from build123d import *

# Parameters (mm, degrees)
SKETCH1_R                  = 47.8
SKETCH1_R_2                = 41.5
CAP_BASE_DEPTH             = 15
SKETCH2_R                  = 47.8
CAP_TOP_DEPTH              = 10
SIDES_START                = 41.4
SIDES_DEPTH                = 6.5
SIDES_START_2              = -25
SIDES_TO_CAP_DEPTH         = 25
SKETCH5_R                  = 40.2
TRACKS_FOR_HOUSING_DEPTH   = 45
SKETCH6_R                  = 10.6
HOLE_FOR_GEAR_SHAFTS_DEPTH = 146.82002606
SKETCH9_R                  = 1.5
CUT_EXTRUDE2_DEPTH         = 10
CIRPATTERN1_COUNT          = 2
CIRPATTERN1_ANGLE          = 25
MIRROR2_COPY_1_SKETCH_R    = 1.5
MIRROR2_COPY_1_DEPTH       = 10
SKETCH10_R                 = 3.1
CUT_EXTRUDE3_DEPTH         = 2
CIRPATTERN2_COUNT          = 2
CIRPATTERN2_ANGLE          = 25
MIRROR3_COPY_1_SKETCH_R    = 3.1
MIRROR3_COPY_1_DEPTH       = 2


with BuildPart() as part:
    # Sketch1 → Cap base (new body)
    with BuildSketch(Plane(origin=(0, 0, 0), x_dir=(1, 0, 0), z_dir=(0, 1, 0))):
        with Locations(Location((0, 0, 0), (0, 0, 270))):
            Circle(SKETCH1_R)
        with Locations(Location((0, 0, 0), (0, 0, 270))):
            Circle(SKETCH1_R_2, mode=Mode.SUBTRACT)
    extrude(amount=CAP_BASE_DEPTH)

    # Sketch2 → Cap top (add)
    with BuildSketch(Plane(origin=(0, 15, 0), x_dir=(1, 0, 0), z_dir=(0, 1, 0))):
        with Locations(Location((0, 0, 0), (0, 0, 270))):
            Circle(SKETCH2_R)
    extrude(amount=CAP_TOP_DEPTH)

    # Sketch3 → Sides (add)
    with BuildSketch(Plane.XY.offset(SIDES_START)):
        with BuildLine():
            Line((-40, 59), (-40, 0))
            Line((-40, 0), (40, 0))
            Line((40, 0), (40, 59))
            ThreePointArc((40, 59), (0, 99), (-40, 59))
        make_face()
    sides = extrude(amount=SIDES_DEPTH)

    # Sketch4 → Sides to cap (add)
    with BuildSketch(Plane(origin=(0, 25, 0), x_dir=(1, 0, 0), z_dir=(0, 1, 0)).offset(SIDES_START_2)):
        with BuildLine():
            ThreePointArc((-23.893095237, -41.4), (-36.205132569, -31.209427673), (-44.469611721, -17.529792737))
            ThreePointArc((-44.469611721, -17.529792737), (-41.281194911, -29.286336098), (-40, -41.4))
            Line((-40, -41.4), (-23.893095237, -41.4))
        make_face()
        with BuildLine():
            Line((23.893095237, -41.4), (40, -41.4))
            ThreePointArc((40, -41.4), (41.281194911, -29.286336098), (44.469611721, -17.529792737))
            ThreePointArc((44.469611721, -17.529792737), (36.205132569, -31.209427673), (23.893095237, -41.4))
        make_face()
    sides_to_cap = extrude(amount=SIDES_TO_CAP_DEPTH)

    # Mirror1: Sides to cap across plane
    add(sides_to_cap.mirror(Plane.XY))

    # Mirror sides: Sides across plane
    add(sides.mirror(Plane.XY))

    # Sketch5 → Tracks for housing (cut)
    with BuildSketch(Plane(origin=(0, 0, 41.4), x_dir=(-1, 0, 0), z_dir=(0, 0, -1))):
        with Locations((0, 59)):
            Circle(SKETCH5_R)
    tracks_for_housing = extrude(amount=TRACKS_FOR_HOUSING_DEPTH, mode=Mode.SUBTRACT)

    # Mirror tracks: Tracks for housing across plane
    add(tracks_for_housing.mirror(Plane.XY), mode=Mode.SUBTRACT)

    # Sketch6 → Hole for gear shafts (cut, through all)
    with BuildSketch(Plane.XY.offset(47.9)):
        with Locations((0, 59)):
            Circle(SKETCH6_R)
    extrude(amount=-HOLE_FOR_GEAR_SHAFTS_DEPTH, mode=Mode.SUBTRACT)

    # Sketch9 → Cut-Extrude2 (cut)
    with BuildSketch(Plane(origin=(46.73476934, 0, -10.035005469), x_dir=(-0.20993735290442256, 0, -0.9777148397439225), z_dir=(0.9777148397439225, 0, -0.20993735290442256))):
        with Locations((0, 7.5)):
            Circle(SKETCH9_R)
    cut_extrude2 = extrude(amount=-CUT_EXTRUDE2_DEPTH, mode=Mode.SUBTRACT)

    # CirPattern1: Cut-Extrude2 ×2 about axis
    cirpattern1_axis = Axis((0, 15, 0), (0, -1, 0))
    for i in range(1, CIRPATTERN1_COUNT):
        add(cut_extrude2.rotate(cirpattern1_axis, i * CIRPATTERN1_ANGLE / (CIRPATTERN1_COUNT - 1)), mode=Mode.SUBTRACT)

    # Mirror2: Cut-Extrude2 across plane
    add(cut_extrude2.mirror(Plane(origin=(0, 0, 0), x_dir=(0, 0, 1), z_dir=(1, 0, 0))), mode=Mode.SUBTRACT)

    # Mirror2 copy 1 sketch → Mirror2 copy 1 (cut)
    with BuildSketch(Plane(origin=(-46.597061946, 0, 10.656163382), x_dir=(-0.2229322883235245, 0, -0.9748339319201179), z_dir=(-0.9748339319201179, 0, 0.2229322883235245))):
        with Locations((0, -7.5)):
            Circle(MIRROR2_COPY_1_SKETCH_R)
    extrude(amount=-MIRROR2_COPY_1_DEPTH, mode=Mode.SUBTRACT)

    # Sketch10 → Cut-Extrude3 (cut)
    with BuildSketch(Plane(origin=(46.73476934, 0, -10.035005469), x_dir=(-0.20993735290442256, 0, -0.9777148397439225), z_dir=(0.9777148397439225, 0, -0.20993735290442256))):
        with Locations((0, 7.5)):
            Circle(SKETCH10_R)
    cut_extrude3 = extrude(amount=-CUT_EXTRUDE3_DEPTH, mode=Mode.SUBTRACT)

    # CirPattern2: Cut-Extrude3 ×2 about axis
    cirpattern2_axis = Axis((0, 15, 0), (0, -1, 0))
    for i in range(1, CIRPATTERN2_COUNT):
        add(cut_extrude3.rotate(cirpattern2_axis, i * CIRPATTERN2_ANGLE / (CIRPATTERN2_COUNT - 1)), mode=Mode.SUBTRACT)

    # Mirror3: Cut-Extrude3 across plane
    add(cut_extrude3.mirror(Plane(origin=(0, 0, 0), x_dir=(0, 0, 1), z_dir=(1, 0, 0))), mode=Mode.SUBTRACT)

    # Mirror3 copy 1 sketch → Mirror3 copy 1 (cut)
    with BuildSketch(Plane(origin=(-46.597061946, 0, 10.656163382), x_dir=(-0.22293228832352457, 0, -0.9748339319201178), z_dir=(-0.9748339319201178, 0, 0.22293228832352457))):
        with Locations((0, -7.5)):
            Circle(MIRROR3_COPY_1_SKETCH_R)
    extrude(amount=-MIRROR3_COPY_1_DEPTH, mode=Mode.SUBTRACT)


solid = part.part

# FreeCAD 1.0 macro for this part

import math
import FreeCAD as App
import Part
import Sketcher
from FreeCAD import Vector

doc = App.newDocument("Part")
body = doc.addObject("PartDesign::Body", "Body")

sketch1 = body.newObject("Sketcher::SketchObject", "Sketch")
sketch1.AttachmentSupport = (doc.getObject("XZ_Plane"), [""])
sketch1.MapMode = "FlatFace"
sketch1.addGeometry(Part.Circle(Vector(0, 0, 0), Vector(0, 0, 1), 47.8), False)
sketch1.addGeometry(Part.Circle(Vector(0, 0, 0), Vector(0, 0, 1), 41.5), False)
sketch1.addConstraint(Sketcher.Constraint("Coincident", 0, 3, -1, 1))
sketch1.addConstraint(Sketcher.Constraint("Coincident", 1, 3, -1, 1))
sketch1.addConstraint(Sketcher.Constraint("Diameter", 1, 83.0))
sketch1.addConstraint(Sketcher.Constraint("Diameter", 0, 95.6))
pad1 = body.newObject("PartDesign::Pad", "Pad")
pad1.Profile = sketch1
pad1.Length = 15
pad1.Reversed = True

sketch2 = body.newObject("Sketcher::SketchObject", "Sketch001")
sketch2.AttachmentSupport = (doc.getObject("XZ_Plane"), [""])
sketch2.MapMode = "FlatFace"
sketch2.AttachmentOffset = App.Placement(Vector(0, 0, -15), App.Rotation())
sketch2.addGeometry(Part.Circle(Vector(0, 0, 0), Vector(0, 0, 1), 47.8), False)
sketch2.addConstraint(Sketcher.Constraint("Coincident", 0, 3, -1, 1))
sketch2.addConstraint(Sketcher.Constraint("Diameter", 0, 95.6))
pad2 = body.newObject("PartDesign::Pad", "Pad001")
pad2.Profile = sketch2
pad2.Length = 10
pad2.Reversed = True

sketch3 = body.newObject("Sketcher::SketchObject", "Sketch002")
sketch3.AttachmentSupport = (doc.getObject("XY_Plane"), [""])
sketch3.MapMode = "FlatFace"
sketch3.AttachmentOffset = App.Placement(Vector(0, 0, 41.4), App.Rotation())
sketch3.addGeometry(Part.LineSegment(Vector(-40, 59, 0), Vector(-40, 0, 0)), False)
sketch3.addGeometry(Part.LineSegment(Vector(-40, 0, 0), Vector(40, 0, 0)), False)
sketch3.addGeometry(Part.LineSegment(Vector(40, 0, 0), Vector(40, 59, 0)), False)
sketch3.addGeometry(Part.ArcOfCircle(Part.Circle(Vector(0, 59, 0), Vector(0, 0, 1), 40), math.radians(0), math.radians(180)), False)
sketch3.addConstraint(Sketcher.Constraint("Coincident", 0, 2, 1, 1))
sketch3.addConstraint(Sketcher.Constraint("Coincident", 1, 2, 2, 1))
sketch3.addConstraint(Sketcher.Constraint("Tangent", 2, 2, 3, 1))
sketch3.addConstraint(Sketcher.Constraint("Tangent", 3, 2, 0, 1))
sketch3.addConstraint(Sketcher.Constraint("Vertical", 0))
sketch3.addConstraint(Sketcher.Constraint("Horizontal", 1))
sketch3.addConstraint(Sketcher.Constraint("Vertical", 2))
sketch3.addConstraint(Sketcher.Constraint("Symmetric", 0, 2, 1, 2, -1, 1))
sketch3.addConstraint(Sketcher.Constraint("Radius", 3, 40.0))
sketch3.addConstraint(Sketcher.Constraint("DistanceY", 0, 2, 0, 1, 59.0))
pad3 = body.newObject("PartDesign::Pad", "Pad002")
pad3.Profile = sketch3
pad3.Length = 6.5

sketch4 = body.newObject("Sketcher::SketchObject", "Sketch003")
sketch4.AttachmentSupport = (doc.getObject("XZ_Plane"), [""])
sketch4.MapMode = "FlatFace"
sketch4.addGeometry(Part.ArcOfCircle(Part.Circle(Vector(0, 0, 0), Vector(0, 0, 1), 47.8), math.radians(119.990444), math.radians(158.485784)), False)
sketch4.addGeometry(Part.ArcOfCircle(Part.Circle(Vector(-116.446058, 43.36069, 0), Vector(0, 0, 1), 76.471198), math.radians(-19.742041), math.radians(-1.469201)), False)
sketch4.addGeometry(Part.LineSegment(Vector(-40, 41.4, 0), Vector(-23.893095, 41.4, 0)), False)
sketch4.addGeometry(Part.LineSegment(Vector(23.893095, 41.4, 0), Vector(40, 41.4, 0)), False)
sketch4.addGeometry(Part.ArcOfCircle(Part.Circle(Vector(116.446058, 43.36069, 0), Vector(0, 0, 1), 76.471198), math.radians(-178.530799), math.radians(-160.257959)), False)
sketch4.addGeometry(Part.ArcOfCircle(Part.Circle(Vector(0, 0, 0), Vector(0, 0, 1), 47.8), math.radians(21.514216), math.radians(60.009556)), False)
sketch4.addConstraint(Sketcher.Constraint("Coincident", 0, 2, 1, 1))
sketch4.addConstraint(Sketcher.Constraint("Coincident", 1, 2, 2, 1))
sketch4.addConstraint(Sketcher.Constraint("Coincident", 2, 2, 0, 1))
sketch4.addConstraint(Sketcher.Constraint("Coincident", 3, 2, 4, 1))
sketch4.addConstraint(Sketcher.Constraint("Coincident", 4, 2, 5, 1))
sketch4.addConstraint(Sketcher.Constraint("Coincident", 5, 2, 3, 1))
sketch4.addConstraint(Sketcher.Constraint("Horizontal", 2))
sketch4.addConstraint(Sketcher.Constraint("Horizontal", 3))
sketch4.addConstraint(Sketcher.Constraint("Coincident", 0, 3, -1, 1))
sketch4.addConstraint(Sketcher.Constraint("Coincident", 5, 3, -1, 1))
sketch4.addConstraint(Sketcher.Constraint("Equal", 1, 4))
sketch4.addConstraint(Sketcher.Constraint("Equal", 0, 5))
sketch4.addConstraint(Sketcher.Constraint("Symmetric", 1, 3, 4, 3, -2))
sketch4.addConstraint(Sketcher.Constraint("Horizontal", 2, 2, 3, 2))
sketch4.addConstraint(Sketcher.Constraint("Radius", 0, 47.8))
sketch4.addConstraint(Sketcher.Constraint("DistanceX", 1, 2, -1, 1, 40.0))
sketch4.addConstraint(Sketcher.Constraint("DistanceY", -1, 1, 1, 2, 41.4))
sketch4.addConstraint(Sketcher.Constraint("Radius", 1, 76.471198))
sketch4.addConstraint(Sketcher.Constraint("DistanceY", -1, 1, 1, 3, 43.36069))
pad4 = body.newObject("PartDesign::Pad", "Pad003")
pad4.Profile = sketch4
pad4.Length = 25
pad4.Reversed = True
doc.recompute()

mirrored = body.newObject("PartDesign::Mirrored", "Mirrored")
mirrored.Originals = [pad4]
mirrored.MirrorPlane = (doc.getObject("XY_Plane"), [""])
body.Tip = mirrored
doc.recompute()

mirrored2 = body.newObject("PartDesign::Mirrored", "Mirrored001")
mirrored2.Originals = [pad3]
mirrored2.MirrorPlane = (doc.getObject("XY_Plane"), [""])
body.Tip = mirrored2

sketch5 = body.newObject("Sketcher::SketchObject", "Sketch004")
sketch5.AttachmentSupport = (doc.getObject("XY_Plane"), [""])
sketch5.MapMode = "FlatFace"
sketch5.AttachmentOffset = App.Placement(Vector(0, 0, 41.4), App.Rotation())
sketch5.addGeometry(Part.Circle(Vector(0, 59, 0), Vector(0, 0, 1), 40.2), False)
sketch5.addConstraint(Sketcher.Constraint("PointOnObject", 0, 3, -2))
sketch5.addConstraint(Sketcher.Constraint("Diameter", 0, 80.4))
sketch5.addConstraint(Sketcher.Constraint("DistanceY", -1, 1, 0, 3, 59.0))
pocket1 = body.newObject("PartDesign::Pocket", "Pocket")
pocket1.Profile = sketch5
pocket1.Length = 45
doc.recompute()

mirrored3 = body.newObject("PartDesign::Mirrored", "Mirrored002")
mirrored3.Originals = [pocket1]
mirrored3.MirrorPlane = (doc.getObject("XY_Plane"), [""])
body.Tip = mirrored3

sketch6 = body.newObject("Sketcher::SketchObject", "Sketch005")
sketch6.AttachmentSupport = (doc.getObject("XY_Plane"), [""])
sketch6.MapMode = "FlatFace"
sketch6.AttachmentOffset = App.Placement(Vector(0, 0, 47.9), App.Rotation())
sketch6.addGeometry(Part.Circle(Vector(0, 59, 0), Vector(0, 0, 1), 10.6), False)
sketch6.addConstraint(Sketcher.Constraint("PointOnObject", 0, 3, -2))
sketch6.addConstraint(Sketcher.Constraint("Diameter", 0, 21.2))
sketch6.addConstraint(Sketcher.Constraint("DistanceY", -1, 1, 0, 3, 59.0))
pocket2 = body.newObject("PartDesign::Pocket", "Pocket001")
pocket2.Profile = sketch6
pocket2.Type = "ThroughAll"

sketch7 = body.newObject("Sketcher::SketchObject", "Sketch006")
sketch7.Placement = App.Placement(Vector(46.734769, 0, -10.035005), App.Rotation(Vector(-0.209937353, 0, -0.97771484), Vector(0, 1.000000001, 0), Vector(0.97771484, 0, -0.209937353), "ZXY"))
sketch7.addGeometry(Part.Circle(Vector(0, 7.5, 0), Vector(0, 0, 1), 1.5), False)
sketch7.addConstraint(Sketcher.Constraint("PointOnObject", 0, 3, -2))
sketch7.addConstraint(Sketcher.Constraint("Diameter", 0, 3.0))
sketch7.addConstraint(Sketcher.Constraint("DistanceY", -1, 1, 0, 3, 7.5))
pocket3 = body.newObject("PartDesign::Pocket", "Pocket002")
pocket3.Profile = sketch7
pocket3.Length = 10
doc.recompute()

polarpattern = body.newObject("PartDesign::PolarPattern", "PolarPattern")
polarpattern.Originals = [pocket3]
polarpattern.Axis = (doc.getObject("Y_Axis"), [""])
polarpattern.Angle = 25
polarpattern.Occurrences = 2
polarpattern.Reversed = True
body.Tip = polarpattern
doc.recompute()

mirrored4 = body.newObject("PartDesign::Mirrored", "Mirrored003")
mirrored4.Originals = [pocket3]
mirrored4.MirrorPlane = (doc.getObject("YZ_Plane"), [""])
body.Tip = mirrored4

sketch8 = body.newObject("Sketcher::SketchObject", "Sketch007")
sketch8.Placement = App.Placement(Vector(-46.597062, 0, 10.656163), App.Rotation(Vector(-0.222932288, 0, -0.974833932), Vector(0, -1, 0), Vector(-0.974833932, 0, 0.222932288), "ZXY"))
sketch8.addGeometry(Part.Circle(Vector(0, -7.5, 0), Vector(0, 0, 1), 1.5), False)
sketch8.addConstraint(Sketcher.Constraint("PointOnObject", 0, 3, -2))
sketch8.addConstraint(Sketcher.Constraint("Diameter", 0, 3.0))
sketch8.addConstraint(Sketcher.Constraint("DistanceY", 0, 3, -1, 1, 7.5))
pocket4 = body.newObject("PartDesign::Pocket", "Pocket003")
pocket4.Profile = sketch8
pocket4.Length = 10

sketch9 = body.newObject("Sketcher::SketchObject", "Sketch008")
sketch9.Placement = App.Placement(Vector(46.734769, 0, -10.035005), App.Rotation(Vector(-0.209937353, 0, -0.97771484), Vector(0, 1.000000001, 0), Vector(0.97771484, 0, -0.209937353), "ZXY"))
sketch9.addGeometry(Part.Circle(Vector(0, 7.5, 0), Vector(0, 0, 1), 3.1), False)
sketch9.addConstraint(Sketcher.Constraint("PointOnObject", 0, 3, -2))
sketch9.addConstraint(Sketcher.Constraint("Diameter", 0, 6.2))
sketch9.addConstraint(Sketcher.Constraint("DistanceY", -1, 1, 0, 3, 7.5))
pocket5 = body.newObject("PartDesign::Pocket", "Pocket004")
pocket5.Profile = sketch9
pocket5.Length = 2
doc.recompute()

polarpattern2 = body.newObject("PartDesign::PolarPattern", "PolarPattern001")
polarpattern2.Originals = [pocket5]
polarpattern2.Axis = (doc.getObject("Y_Axis"), [""])
polarpattern2.Angle = 25
polarpattern2.Occurrences = 2
polarpattern2.Reversed = True
body.Tip = polarpattern2
doc.recompute()

mirrored5 = body.newObject("PartDesign::Mirrored", "Mirrored004")
mirrored5.Originals = [pocket5]
mirrored5.MirrorPlane = (doc.getObject("YZ_Plane"), [""])
body.Tip = mirrored5

sketch10 = body.newObject("Sketcher::SketchObject", "Sketch009")
sketch10.Placement = App.Placement(Vector(-46.597062, 0, 10.656163), App.Rotation(Vector(-0.222932288, 0, -0.974833932), Vector(0, -1, 0), Vector(-0.974833932, 0, 0.222932288), "ZXY"))
sketch10.addGeometry(Part.Circle(Vector(0, -7.5, 0), Vector(0, 0, 1), 3.1), False)
sketch10.addConstraint(Sketcher.Constraint("PointOnObject", 0, 3, -2))
sketch10.addConstraint(Sketcher.Constraint("Diameter", 0, 6.2))
sketch10.addConstraint(Sketcher.Constraint("DistanceY", 0, 3, -1, 1, 7.5))
pocket6 = body.newObject("PartDesign::Pocket", "Pocket005")
pocket6.Profile = sketch10
pocket6.Length = 2

doc.recompute()
